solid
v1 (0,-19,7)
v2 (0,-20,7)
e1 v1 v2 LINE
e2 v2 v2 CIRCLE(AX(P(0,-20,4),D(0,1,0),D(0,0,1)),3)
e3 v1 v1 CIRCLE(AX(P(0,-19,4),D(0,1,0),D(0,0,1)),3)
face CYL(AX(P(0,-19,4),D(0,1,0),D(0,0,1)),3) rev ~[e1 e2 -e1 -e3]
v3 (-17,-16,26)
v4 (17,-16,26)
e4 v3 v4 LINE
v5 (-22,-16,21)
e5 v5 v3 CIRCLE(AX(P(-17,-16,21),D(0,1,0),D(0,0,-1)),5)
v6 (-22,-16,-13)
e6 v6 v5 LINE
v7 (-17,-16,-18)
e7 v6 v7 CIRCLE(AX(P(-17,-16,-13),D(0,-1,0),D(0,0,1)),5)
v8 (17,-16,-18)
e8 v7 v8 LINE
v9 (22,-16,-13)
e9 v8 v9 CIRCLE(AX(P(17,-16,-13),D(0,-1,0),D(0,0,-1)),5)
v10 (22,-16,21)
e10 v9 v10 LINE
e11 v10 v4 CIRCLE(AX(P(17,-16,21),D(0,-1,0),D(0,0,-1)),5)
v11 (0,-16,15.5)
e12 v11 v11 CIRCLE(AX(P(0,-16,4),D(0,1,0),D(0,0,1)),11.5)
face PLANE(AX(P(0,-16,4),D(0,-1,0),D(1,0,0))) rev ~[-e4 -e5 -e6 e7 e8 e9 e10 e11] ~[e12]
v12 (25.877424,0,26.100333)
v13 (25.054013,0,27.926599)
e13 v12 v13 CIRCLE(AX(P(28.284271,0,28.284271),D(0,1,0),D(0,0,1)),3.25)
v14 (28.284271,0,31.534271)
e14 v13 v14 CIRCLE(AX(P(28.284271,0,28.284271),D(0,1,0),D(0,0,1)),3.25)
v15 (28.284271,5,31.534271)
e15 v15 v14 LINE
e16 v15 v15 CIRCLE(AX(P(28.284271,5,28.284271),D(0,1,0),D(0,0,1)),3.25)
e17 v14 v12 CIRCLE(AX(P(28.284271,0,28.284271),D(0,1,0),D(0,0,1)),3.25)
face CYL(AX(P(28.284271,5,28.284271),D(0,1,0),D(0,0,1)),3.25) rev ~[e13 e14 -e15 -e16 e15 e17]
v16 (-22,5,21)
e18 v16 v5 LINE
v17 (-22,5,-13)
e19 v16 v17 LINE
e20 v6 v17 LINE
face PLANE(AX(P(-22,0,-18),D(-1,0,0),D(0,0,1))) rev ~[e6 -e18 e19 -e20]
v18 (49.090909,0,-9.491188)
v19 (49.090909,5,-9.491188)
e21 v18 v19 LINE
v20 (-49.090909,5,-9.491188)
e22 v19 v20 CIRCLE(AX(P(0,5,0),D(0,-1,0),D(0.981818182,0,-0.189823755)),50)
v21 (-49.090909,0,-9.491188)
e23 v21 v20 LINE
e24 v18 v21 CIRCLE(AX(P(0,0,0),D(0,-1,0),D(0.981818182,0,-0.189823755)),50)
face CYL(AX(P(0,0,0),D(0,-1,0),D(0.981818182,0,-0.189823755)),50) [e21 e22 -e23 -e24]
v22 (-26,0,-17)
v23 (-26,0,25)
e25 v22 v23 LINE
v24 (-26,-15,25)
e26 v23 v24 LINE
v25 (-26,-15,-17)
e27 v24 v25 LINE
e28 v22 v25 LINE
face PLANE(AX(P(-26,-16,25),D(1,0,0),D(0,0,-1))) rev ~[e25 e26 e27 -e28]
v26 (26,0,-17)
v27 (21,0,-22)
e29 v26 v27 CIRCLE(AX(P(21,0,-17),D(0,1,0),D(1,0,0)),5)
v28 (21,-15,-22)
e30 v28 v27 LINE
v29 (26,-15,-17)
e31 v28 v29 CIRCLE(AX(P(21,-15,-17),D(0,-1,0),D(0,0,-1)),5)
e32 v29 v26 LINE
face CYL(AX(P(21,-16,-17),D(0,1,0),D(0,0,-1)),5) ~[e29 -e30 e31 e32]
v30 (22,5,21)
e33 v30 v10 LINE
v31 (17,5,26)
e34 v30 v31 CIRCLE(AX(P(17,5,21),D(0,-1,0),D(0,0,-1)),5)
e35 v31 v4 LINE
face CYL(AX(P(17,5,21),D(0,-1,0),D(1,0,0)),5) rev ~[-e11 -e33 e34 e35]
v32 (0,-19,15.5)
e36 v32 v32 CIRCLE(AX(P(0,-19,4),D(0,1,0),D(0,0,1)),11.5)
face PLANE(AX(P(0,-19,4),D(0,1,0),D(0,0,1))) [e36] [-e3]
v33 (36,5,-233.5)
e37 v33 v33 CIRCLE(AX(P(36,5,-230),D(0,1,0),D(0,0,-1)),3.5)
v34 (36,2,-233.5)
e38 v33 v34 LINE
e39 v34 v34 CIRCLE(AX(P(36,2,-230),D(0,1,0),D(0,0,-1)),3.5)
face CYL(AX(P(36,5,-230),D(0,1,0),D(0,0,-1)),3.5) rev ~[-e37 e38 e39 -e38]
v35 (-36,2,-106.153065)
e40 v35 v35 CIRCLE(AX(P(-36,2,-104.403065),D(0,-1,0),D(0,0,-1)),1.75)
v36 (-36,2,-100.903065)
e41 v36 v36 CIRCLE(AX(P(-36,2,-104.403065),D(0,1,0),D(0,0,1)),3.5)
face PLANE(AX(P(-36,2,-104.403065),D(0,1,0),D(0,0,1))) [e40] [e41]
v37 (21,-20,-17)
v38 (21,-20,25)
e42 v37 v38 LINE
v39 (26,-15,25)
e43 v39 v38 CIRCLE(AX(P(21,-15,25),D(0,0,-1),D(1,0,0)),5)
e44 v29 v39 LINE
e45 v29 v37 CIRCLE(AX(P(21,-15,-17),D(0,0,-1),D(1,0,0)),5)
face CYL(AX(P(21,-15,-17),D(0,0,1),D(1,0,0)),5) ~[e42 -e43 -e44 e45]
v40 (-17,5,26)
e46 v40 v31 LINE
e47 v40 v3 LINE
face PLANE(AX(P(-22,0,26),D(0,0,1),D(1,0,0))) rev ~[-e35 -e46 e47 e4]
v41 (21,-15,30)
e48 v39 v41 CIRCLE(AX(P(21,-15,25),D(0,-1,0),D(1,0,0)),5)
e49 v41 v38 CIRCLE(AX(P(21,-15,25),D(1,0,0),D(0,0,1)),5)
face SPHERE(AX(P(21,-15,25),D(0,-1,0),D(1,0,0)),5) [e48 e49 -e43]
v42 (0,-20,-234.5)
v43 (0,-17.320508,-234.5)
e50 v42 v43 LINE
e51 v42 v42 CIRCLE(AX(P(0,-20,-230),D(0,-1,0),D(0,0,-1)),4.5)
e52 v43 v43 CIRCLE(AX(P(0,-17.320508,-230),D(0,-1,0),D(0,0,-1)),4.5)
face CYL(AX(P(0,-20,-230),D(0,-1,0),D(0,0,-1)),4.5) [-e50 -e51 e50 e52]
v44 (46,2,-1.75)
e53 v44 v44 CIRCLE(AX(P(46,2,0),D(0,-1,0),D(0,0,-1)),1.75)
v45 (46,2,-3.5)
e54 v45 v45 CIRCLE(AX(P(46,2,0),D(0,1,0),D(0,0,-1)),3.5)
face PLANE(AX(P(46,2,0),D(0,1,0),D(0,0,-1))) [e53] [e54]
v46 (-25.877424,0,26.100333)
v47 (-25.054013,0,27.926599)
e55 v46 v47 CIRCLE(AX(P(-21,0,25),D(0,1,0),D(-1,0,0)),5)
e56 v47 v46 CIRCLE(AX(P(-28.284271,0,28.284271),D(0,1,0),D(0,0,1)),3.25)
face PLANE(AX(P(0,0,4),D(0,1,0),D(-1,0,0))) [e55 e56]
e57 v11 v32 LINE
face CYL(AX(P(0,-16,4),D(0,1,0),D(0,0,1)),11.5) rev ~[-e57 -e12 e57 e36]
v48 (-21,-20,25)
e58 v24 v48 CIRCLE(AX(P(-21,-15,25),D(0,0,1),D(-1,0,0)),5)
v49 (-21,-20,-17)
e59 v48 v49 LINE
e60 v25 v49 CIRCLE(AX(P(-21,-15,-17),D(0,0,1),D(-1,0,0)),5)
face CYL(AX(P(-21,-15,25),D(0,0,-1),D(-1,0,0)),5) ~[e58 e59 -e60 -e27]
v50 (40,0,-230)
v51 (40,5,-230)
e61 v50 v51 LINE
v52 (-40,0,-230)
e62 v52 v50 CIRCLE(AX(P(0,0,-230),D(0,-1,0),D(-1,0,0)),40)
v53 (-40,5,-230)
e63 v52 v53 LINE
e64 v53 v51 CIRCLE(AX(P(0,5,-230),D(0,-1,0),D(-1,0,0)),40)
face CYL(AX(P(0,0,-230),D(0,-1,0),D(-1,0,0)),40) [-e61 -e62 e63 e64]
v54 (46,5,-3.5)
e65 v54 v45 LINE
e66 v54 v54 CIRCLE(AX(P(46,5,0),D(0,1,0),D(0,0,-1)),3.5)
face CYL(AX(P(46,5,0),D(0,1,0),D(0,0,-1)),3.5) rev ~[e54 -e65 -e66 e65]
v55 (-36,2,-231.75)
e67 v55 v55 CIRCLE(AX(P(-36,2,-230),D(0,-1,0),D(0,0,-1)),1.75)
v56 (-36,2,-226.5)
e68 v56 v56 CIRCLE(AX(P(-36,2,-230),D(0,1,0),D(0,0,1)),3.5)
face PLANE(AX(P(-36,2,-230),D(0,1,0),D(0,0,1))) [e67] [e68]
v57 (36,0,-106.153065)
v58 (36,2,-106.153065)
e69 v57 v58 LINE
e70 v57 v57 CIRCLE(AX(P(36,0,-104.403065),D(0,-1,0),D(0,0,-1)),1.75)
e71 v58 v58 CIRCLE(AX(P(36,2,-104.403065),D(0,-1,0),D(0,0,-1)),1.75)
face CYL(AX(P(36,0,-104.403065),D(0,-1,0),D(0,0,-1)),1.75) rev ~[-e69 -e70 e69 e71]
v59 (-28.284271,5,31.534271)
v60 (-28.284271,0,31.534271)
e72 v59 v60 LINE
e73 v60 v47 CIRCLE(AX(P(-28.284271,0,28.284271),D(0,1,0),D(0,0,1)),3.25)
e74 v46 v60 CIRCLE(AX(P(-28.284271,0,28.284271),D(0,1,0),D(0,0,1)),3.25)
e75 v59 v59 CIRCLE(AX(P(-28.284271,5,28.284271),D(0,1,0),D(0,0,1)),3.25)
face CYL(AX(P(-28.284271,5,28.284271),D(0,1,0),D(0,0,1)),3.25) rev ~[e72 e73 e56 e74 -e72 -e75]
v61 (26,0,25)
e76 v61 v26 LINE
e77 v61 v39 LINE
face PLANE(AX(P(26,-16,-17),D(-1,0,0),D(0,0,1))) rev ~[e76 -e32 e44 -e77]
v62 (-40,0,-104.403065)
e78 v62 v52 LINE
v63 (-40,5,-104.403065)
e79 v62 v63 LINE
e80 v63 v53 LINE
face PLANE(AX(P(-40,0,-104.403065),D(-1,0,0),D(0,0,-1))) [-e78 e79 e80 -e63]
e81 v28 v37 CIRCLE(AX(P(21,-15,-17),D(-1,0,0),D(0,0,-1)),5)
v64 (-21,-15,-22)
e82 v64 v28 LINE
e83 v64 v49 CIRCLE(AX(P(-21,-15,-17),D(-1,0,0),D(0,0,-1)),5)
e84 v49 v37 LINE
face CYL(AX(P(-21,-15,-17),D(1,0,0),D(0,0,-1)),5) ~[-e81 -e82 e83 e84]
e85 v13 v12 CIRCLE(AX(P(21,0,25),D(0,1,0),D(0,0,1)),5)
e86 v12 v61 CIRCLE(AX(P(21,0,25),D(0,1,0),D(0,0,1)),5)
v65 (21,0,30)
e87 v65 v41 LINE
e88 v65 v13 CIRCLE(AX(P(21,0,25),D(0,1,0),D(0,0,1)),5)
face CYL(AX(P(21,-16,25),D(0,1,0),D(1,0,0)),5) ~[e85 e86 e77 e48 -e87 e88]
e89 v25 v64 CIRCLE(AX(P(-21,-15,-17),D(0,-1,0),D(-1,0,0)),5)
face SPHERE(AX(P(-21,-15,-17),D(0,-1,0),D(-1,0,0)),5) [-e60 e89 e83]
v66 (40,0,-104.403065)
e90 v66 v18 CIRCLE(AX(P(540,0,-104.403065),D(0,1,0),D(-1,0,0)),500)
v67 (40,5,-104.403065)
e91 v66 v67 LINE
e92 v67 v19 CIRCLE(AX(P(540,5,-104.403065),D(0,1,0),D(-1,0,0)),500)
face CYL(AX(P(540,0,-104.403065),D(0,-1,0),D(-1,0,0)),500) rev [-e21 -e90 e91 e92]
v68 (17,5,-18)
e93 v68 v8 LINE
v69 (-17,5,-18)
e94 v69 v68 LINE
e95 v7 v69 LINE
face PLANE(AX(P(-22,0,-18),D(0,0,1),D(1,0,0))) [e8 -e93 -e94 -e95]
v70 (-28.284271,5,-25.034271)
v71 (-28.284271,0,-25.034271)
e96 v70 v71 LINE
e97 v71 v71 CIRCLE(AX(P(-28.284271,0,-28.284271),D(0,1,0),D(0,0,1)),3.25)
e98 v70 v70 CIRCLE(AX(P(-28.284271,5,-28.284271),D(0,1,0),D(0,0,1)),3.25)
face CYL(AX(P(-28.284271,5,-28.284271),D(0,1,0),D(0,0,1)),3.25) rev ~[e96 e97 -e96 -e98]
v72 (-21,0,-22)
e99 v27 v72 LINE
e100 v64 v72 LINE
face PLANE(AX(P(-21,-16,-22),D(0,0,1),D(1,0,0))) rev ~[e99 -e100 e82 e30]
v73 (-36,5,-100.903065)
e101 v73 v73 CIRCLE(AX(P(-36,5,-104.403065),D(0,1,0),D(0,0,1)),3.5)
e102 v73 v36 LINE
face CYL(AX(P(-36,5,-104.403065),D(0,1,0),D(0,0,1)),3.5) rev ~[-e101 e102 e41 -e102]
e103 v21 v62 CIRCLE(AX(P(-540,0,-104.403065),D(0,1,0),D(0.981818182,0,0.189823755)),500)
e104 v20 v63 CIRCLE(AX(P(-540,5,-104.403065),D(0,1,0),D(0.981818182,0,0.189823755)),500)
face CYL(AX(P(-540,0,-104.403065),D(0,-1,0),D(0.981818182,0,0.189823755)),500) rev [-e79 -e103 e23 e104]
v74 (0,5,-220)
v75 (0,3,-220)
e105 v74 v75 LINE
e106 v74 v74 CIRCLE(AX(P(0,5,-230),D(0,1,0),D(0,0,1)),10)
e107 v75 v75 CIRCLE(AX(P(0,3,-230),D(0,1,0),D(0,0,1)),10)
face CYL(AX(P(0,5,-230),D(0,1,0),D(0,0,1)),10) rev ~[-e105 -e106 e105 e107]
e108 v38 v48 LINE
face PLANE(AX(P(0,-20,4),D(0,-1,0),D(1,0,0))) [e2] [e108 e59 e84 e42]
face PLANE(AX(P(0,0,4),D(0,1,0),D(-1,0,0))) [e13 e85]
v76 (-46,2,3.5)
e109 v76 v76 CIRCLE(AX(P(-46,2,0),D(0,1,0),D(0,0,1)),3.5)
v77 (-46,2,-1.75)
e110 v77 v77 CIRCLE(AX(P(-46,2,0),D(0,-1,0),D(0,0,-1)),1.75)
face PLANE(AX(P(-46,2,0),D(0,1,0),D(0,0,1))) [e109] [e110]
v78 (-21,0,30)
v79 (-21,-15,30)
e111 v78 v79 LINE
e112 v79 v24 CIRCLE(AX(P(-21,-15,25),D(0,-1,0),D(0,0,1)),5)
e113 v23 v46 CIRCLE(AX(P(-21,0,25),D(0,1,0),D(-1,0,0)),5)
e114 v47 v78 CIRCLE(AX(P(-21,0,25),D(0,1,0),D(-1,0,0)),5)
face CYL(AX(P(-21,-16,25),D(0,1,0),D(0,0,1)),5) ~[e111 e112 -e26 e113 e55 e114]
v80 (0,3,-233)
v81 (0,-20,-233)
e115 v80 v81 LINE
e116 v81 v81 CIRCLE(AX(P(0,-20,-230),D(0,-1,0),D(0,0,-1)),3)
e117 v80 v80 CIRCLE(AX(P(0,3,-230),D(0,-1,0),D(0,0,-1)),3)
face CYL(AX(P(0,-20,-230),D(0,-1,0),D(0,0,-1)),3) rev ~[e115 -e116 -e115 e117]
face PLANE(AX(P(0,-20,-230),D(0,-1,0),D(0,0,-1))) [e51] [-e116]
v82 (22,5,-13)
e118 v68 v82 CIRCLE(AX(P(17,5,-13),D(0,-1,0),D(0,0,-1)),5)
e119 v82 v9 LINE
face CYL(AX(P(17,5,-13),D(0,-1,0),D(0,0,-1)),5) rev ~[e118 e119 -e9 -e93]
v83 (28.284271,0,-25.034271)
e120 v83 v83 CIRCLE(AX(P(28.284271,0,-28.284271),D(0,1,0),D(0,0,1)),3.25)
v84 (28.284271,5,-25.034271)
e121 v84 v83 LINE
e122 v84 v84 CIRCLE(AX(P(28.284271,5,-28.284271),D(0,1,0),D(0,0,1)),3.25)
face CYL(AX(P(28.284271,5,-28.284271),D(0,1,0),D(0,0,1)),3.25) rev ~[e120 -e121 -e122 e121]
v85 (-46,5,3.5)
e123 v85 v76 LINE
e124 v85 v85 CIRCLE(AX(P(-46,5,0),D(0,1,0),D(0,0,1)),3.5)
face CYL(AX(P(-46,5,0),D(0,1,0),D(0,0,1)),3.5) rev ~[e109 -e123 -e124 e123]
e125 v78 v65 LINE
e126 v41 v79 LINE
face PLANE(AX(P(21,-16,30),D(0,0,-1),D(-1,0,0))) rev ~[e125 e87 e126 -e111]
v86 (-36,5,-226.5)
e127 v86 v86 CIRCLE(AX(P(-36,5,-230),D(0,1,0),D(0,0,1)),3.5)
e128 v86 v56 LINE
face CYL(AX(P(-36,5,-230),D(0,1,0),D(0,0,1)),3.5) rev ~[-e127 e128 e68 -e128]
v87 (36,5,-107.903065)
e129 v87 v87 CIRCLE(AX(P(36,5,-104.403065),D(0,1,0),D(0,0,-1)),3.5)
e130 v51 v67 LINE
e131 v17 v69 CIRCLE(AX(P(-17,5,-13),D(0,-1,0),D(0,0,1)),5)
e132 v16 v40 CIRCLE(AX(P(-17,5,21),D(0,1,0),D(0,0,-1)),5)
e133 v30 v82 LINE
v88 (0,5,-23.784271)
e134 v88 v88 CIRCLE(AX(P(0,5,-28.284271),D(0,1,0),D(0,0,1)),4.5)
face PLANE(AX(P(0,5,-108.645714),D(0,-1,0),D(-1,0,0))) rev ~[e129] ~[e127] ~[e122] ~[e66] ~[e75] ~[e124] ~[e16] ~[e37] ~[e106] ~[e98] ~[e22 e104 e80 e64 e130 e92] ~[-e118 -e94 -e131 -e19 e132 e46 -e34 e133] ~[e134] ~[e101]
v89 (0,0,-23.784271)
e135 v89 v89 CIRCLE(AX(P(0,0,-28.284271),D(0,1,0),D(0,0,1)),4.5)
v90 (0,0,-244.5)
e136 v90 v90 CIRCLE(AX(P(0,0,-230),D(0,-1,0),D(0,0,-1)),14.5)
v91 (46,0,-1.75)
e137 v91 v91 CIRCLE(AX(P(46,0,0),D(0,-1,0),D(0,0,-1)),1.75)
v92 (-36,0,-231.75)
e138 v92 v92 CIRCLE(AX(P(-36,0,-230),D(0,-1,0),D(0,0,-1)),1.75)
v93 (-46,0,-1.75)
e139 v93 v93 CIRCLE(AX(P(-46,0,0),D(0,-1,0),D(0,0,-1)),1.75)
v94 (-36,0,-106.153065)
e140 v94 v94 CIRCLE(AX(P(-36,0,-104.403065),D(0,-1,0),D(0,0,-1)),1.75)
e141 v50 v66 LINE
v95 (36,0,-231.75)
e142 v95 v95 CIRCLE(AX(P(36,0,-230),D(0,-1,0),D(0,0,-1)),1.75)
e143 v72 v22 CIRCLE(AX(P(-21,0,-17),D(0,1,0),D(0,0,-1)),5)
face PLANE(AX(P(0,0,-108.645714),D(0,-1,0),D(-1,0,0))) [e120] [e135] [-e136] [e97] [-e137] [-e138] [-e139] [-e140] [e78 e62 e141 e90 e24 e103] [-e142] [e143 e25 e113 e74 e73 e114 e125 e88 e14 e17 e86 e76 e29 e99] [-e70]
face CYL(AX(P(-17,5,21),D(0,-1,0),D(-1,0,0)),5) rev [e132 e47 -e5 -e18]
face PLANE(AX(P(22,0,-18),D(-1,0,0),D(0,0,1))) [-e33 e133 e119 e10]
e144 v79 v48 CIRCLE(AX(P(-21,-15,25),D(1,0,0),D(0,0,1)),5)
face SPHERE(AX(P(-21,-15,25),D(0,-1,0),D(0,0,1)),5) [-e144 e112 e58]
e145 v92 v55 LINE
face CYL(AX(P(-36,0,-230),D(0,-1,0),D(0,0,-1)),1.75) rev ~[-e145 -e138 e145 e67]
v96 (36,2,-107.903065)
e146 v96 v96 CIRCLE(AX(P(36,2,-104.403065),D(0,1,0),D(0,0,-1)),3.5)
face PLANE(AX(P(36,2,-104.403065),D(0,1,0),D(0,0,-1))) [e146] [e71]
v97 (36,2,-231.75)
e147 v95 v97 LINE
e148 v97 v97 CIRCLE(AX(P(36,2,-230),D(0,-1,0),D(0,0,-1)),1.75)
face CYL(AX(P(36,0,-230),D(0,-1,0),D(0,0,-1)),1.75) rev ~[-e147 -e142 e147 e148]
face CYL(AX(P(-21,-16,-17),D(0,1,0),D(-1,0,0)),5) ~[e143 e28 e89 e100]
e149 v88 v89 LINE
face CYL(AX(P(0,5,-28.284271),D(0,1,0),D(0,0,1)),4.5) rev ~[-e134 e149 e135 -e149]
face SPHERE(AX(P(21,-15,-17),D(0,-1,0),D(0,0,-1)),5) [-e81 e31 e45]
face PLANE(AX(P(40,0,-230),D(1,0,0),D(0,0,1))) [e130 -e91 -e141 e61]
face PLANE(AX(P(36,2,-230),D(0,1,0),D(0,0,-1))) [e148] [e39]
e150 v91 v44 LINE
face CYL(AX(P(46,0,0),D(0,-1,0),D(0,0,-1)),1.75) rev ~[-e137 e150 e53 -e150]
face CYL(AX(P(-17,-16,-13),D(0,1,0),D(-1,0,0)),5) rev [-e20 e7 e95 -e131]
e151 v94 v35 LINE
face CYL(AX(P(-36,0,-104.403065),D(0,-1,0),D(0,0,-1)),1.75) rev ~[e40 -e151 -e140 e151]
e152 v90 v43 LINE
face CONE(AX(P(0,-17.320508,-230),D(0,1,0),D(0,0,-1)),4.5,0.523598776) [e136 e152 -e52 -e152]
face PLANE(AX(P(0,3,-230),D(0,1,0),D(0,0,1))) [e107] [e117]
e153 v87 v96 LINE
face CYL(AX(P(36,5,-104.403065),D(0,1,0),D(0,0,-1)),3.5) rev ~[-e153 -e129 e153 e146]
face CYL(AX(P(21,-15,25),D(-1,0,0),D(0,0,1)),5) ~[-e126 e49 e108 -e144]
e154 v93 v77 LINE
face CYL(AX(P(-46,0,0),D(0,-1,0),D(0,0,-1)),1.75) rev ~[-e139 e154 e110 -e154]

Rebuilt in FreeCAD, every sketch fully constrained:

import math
import FreeCAD as App
import Part
import Sketcher
Q = App.Units.Quantity


def edges_at(feature, points):
    """Names of the edges that pass closest to the given points."""
    edges = feature.Shape.Edges
    near = lambda p: min(range(len(edges)), key=lambda i: edges[i].distToShape(Part.Vertex(*p))[0])
    return sorted({f"Edge{near(p) + 1}" for p in points})

doc = App.newDocument("Part")
body = doc.addObject("PartDesign::Body", "Body")

sketch1 = doc.addObject("Sketcher::SketchObject", "Sketch")
body.addObject(sketch1)
sketch1.AttachmentSupport = (doc.XZ_Plane, [""])
sketch1.MapMode = "FlatFace"
sketch1.addGeometry(Part.LineSegment(App.Vector(-40, -230, 0), App.Vector(-40, -104, 0)), False)
sketch1.addGeometry(Part.ArcOfCircle(Part.Circle(App.Vector(-540, -104, 0), App.Vector(0, 0, 1), 500), math.radians(0), math.radians(10.94)), False)
sketch1.addGeometry(Part.ArcOfCircle(Part.Circle(App.Vector(0, 0, 0), App.Vector(0, 0, 1), 50), math.radians(-11), math.radians(191)), False)
sketch1.addGeometry(Part.ArcOfCircle(Part.Circle(App.Vector(540, -104, 0), App.Vector(0, 0, 1), 500), math.radians(169.06), math.radians(180)), False)
sketch1.addGeometry(Part.LineSegment(App.Vector(40, -104, 0), App.Vector(40, -230, 0)), False)
sketch1.addGeometry(Part.ArcOfCircle(Part.Circle(App.Vector(0, -230, 0), App.Vector(0, 0, 1), 40), math.radians(180), math.radians(360)), False)
sketch1.addConstraint(Sketcher.Constraint("Tangent", 0, 2, 1, 1))
sketch1.addConstraint(Sketcher.Constraint("Tangent", 1, 2, 2, 2))
sketch1.addConstraint(Sketcher.Constraint("Tangent", 2, 1, 3, 1))
sketch1.addConstraint(Sketcher.Constraint("Tangent", 3, 2, 4, 1))
sketch1.addConstraint(Sketcher.Constraint("Tangent", 4, 2, 5, 2))
sketch1.addConstraint(Sketcher.Constraint("Tangent", 5, 1, 0, 1))
sketch1.addConstraint(Sketcher.Constraint("Vertical", 0))
sketch1.addConstraint(Sketcher.Constraint("Vertical", 4))
sketch1.addConstraint(Sketcher.Constraint("Coincident", 2, 3, -1, 1))
sketch1.addConstraint(Sketcher.Constraint("Equal", 1, 3))
sketch1.addConstraint(Sketcher.Constraint("PointOnObject", 5, 3, -2))
sketch1.addConstraint(Sketcher.Constraint("Radius", 1, Q("500 mm")))
sketch1.addConstraint(Sketcher.Constraint("Radius", 2, Q("50 mm")))
sketch1.addConstraint(Sketcher.Constraint("Radius", 5, Q("40 mm")))
sketch1.addConstraint(Sketcher.Constraint("DistanceY", 5, 3, -1, 1, Q("230 mm")))
pad1 = doc.addObject("PartDesign::Pad", "Pad")
body.addObject(pad1)
pad1.Profile = sketch1
pad1.Length = 5
pad1.Reversed = True

sketch2 = doc.addObject("Sketcher::SketchObject", "Sketch001")
body.addObject(sketch2)
sketch2.AttachmentSupport = (doc.XZ_Plane, [""])
sketch2.MapMode = "FlatFace"
sketch2.AttachmentOffset = App.Placement(App.Vector(0, 0, -5), App.Rotation())
sketch2.addGeometry(Part.Circle(App.Vector(28.3, -28.3, 0), App.Vector(0, 0, 1), 3.2), False)
sketch2.addGeometry(Part.Circle(App.Vector(28.3, 28.3, 0), App.Vector(0, 0, 1), 3.2), False)
sketch2.addGeometry(Part.Circle(App.Vector(-28.3, 28.3, 0), App.Vector(0, 0, 1), 3.2), False)
sketch2.addGeometry(Part.Circle(App.Vector(-28.3, -28.3, 0), App.Vector(0, 0, 1), 3.2), False)
sketch2.addConstraint(Sketcher.Constraint("Equal", 0, 1))
sketch2.addConstraint(Sketcher.Constraint("Equal", 1, 2))
sketch2.addConstraint(Sketcher.Constraint("Equal", 2, 3))
sketch2.addConstraint(Sketcher.Constraint("Symmetric", 0, 3, 2, 3, -1, 1))
sketch2.addConstraint(Sketcher.Constraint("Symmetric", 1, 3, 3, 3, -1, 1))
sketch2.addConstraint(Sketcher.Constraint("Symmetric", 1, 3, 2, 3, -2))
sketch2.addConstraint(Sketcher.Constraint("Diameter", 0, Q("6.5 mm")))
sketch2.addConstraint(Sketcher.Constraint("DistanceX", -1, 1, 0, 3, Q("28.284271 mm")))
sketch2.addConstraint(Sketcher.Constraint("DistanceY", 0, 3, -1, 1, Q("28.284271 mm")))
pocket1 = doc.addObject("PartDesign::Pocket", "Pocket")
body.addObject(pocket1)
pocket1.Profile = sketch2
pocket1.Length = 5
pocket1.Reversed = True

sketch3 = doc.addObject("Sketcher::SketchObject", "Sketch002")
body.addObject(sketch3)
sketch3.AttachmentSupport = (doc.XZ_Plane, [""])
sketch3.MapMode = "FlatFace"
sketch3.addGeometry(Part.Circle(App.Vector(46, 0, 0), App.Vector(0, 0, 1), 1.8), False)
sketch3.addGeometry(Part.Circle(App.Vector(36, -104.4, 0), App.Vector(0, 0, 1), 1.8), False)
sketch3.addGeometry(Part.Circle(App.Vector(36, -230, 0), App.Vector(0, 0, 1), 1.8), False)
sketch3.addGeometry(Part.Circle(App.Vector(-36, -230, 0), App.Vector(0, 0, 1), 1.8), False)
sketch3.addGeometry(Part.Circle(App.Vector(-36, -104.4, 0), App.Vector(0, 0, 1), 1.8), False)
sketch3.addGeometry(Part.Circle(App.Vector(-46, 0, 0), App.Vector(0, 0, 1), 1.8), False)
sketch3.addConstraint(Sketcher.Constraint("Equal", 0, 1))
sketch3.addConstraint(Sketcher.Constraint("Equal", 1, 2))
sketch3.addConstraint(Sketcher.Constraint("Equal", 2, 3))
sketch3.addConstraint(Sketcher.Constraint("Equal", 3, 4))
sketch3.addConstraint(Sketcher.Constraint("Equal", 4, 5))
sketch3.addConstraint(Sketcher.Constraint("Symmetric", 0, 3, 5, 3, -1, 1))
sketch3.addConstraint(Sketcher.Constraint("Symmetric", 2, 3, 3, 3, -2))
sketch3.addConstraint(Sketcher.Constraint("Symmetric", 1, 3, 4, 3, -2))
sketch3.addConstraint(Sketcher.Constraint("PointOnObject", 0, 3, -1))
sketch3.addConstraint(Sketcher.Constraint("Vertical", 1, 3, 2, 3))
sketch3.addConstraint(Sketcher.Constraint("Diameter", 0, Q("3.5 mm")))
sketch3.addConstraint(Sketcher.Constraint("DistanceX", -1, 1, 0, 3, Q("46 mm")))
sketch3.addConstraint(Sketcher.Constraint("DistanceX", -1, 1, 1, 3, Q("36 mm")))
sketch3.addConstraint(Sketcher.Constraint("DistanceY", 2, 3, -1, 1, Q("230 mm")))
sketch3.addConstraint(Sketcher.Constraint("DistanceY", 1, 3, -1, 1, Q("104.403065 mm")))
pocket2 = doc.addObject("PartDesign::Pocket", "Pocket001")
body.addObject(pocket2)
pocket2.Profile = sketch3
pocket2.Length = 45

sketch4 = doc.addObject("Sketcher::SketchObject", "Sketch003")
body.addObject(sketch4)
sketch4.AttachmentSupport = (doc.XZ_Plane, [""])
sketch4.MapMode = "FlatFace"
sketch4.AttachmentOffset = App.Placement(App.Vector(0, 0, -5), App.Rotation())
sketch4.addGeometry(Part.Circle(App.Vector(-36, -230, 0), App.Vector(0, 0, 1), 3.5), False)
sketch4.addGeometry(Part.Circle(App.Vector(-36, -104.4, 0), App.Vector(0, 0, 1), 3.5), False)
sketch4.addGeometry(Part.Circle(App.Vector(-46, 0, 0), App.Vector(0, 0, 1), 3.5), False)
sketch4.addGeometry(Part.Circle(App.Vector(46, 0, 0), App.Vector(0, 0, 1), 3.5), False)
sketch4.addGeometry(Part.Circle(App.Vector(36, -104.4, 0), App.Vector(0, 0, 1), 3.5), False)
sketch4.addGeometry(Part.Circle(App.Vector(36, -230, 0), App.Vector(0, 0, 1), 3.5), False)
sketch4.addConstraint(Sketcher.Constraint("Equal", 0, 1))
sketch4.addConstraint(Sketcher.Constraint("Equal", 1, 2))
sketch4.addConstraint(Sketcher.Constraint("Equal", 2, 3))
sketch4.addConstraint(Sketcher.Constraint("Equal", 3, 4))
sketch4.addConstraint(Sketcher.Constraint("Equal", 4, 5))
sketch4.addConstraint(Sketcher.Constraint("Symmetric", 2, 3, 3, 3, -1, 1))
sketch4.addConstraint(Sketcher.Constraint("Symmetric", 1, 3, 4, 3, -2))
sketch4.addConstraint(Sketcher.Constraint("Symmetric", 0, 3, 5, 3, -2))
sketch4.addConstraint(Sketcher.Constraint("PointOnObject", 2, 3, -1))
sketch4.addConstraint(Sketcher.Constraint("Vertical", 0, 3, 1, 3))
sketch4.addConstraint(Sketcher.Constraint("Diameter", 0, Q("7 mm")))
sketch4.addConstraint(Sketcher.Constraint("DistanceX", 0, 3, -1, 1, Q("36 mm")))
sketch4.addConstraint(Sketcher.Constraint("DistanceY", 0, 3, -1, 1, Q("230 mm")))
sketch4.addConstraint(Sketcher.Constraint("DistanceX", 2, 3, -1, 1, Q("46 mm")))
sketch4.addConstraint(Sketcher.Constraint("DistanceY", 1, 3, -1, 1, Q("104.403065 mm")))
pocket3 = doc.addObject("PartDesign::Pocket", "Pocket002")
body.addObject(pocket3)
pocket3.Profile = sketch4
pocket3.Length = 3
pocket3.Reversed = True

sketch5 = doc.addObject("Sketcher::SketchObject", "Sketch004")
body.addObject(sketch5)
sketch5.AttachmentSupport = (doc.XZ_Plane, [""])
sketch5.MapMode = "FlatFace"
sketch5.AttachmentOffset = App.Placement(App.Vector(0, 0, -5), App.Rotation())
sketch5.addGeometry(Part.LineSegment(App.Vector(-22, -18, 0), App.Vector(-22, 26, 0)), False)
sketch5.addGeometry(Part.LineSegment(App.Vector(-22, 26, 0), App.Vector(22, 26, 0)), False)
sketch5.addGeometry(Part.LineSegment(App.Vector(22, 26, 0), App.Vector(22, -18, 0)), False)
sketch5.addGeometry(Part.LineSegment(App.Vector(22, -18, 0), App.Vector(-22, -18, 0)), False)
sketch5.addConstraint(Sketcher.Constraint("Coincident", 0, 2, 1, 1))
sketch5.addConstraint(Sketcher.Constraint("Coincident", 1, 2, 2, 1))
sketch5.addConstraint(Sketcher.Constraint("Coincident", 2, 2, 3, 1))
sketch5.addConstraint(Sketcher.Constraint("Coincident", 3, 2, 0, 1))
sketch5.addConstraint(Sketcher.Constraint("Vertical", 0))
sketch5.addConstraint(Sketcher.Constraint("Horizontal", 1))
sketch5.addConstraint(Sketcher.Constraint("Vertical", 2))
sketch5.addConstraint(Sketcher.Constraint("Horizontal", 3))
sketch5.addConstraint(Sketcher.Constraint("Equal", 3, 0))
sketch5.addConstraint(Sketcher.Constraint("DistanceX", 1, 1, 1, 2, Q("44 mm")))
sketch5.addConstraint(Sketcher.Constraint("DistanceX", 0, 2, -1, 1, Q("22 mm")))
sketch5.addConstraint(Sketcher.Constraint("DistanceY", -1, 1, 0, 2, Q("26 mm")))
pocket4 = doc.addObject("PartDesign::Pocket", "Pocket003")
body.addObject(pocket4)
pocket4.Profile = sketch5
pocket4.Length = 5
pocket4.Reversed = True

sketch6 = doc.addObject("Sketcher::SketchObject", "Sketch005")
body.addObject(sketch6)
sketch6.AttachmentSupport = (doc.XZ_Plane, [""])
sketch6.MapMode = "FlatFace"
sketch6.addGeometry(Part.LineSegment(App.Vector(21, 30, 0), App.Vector(-21, 30, 0)), False)
sketch6.addGeometry(Part.ArcOfCircle(Part.Circle(App.Vector(-21, 25, 0), App.Vector(0, 0, 1), 5), math.radians(90), math.radians(180)), False)
sketch6.addGeometry(Part.LineSegment(App.Vector(-26, 25, 0), App.Vector(-26, -17, 0)), False)
sketch6.addGeometry(Part.ArcOfCircle(Part.Circle(App.Vector(-21, -17, 0), App.Vector(0, 0, 1), 5), math.radians(180), math.radians(270)), False)
sketch6.addGeometry(Part.LineSegment(App.Vector(-21, -22, 0), App.Vector(21, -22, 0)), False)
sketch6.addGeometry(Part.ArcOfCircle(Part.Circle(App.Vector(21, -17, 0), App.Vector(0, 0, 1), 5), math.radians(-90), math.radians(0)), False)
sketch6.addGeometry(Part.LineSegment(App.Vector(26, -17, 0), App.Vector(26, 25, 0)), False)
sketch6.addGeometry(Part.ArcOfCircle(Part.Circle(App.Vector(21, 25, 0), App.Vector(0, 0, 1), 5), math.radians(0), math.radians(90)), False)
sketch6.addGeometry(Part.LineSegment(App.Vector(-22, -18, 0), App.Vector(-22, 26, 0)), False)
sketch6.addGeometry(Part.LineSegment(App.Vector(-22, 26, 0), App.Vector(22, 26, 0)), False)
sketch6.addGeometry(Part.LineSegment(App.Vector(22, 26, 0), App.Vector(22, -18, 0)), False)
sketch6.addGeometry(Part.LineSegment(App.Vector(22, -18, 0), App.Vector(-22, -18, 0)), False)
sketch6.addConstraint(Sketcher.Constraint("Tangent", 0, 2, 1, 1))
sketch6.addConstraint(Sketcher.Constraint("Tangent", 1, 2, 2, 1))
sketch6.addConstraint(Sketcher.Constraint("Tangent", 2, 2, 3, 1))
sketch6.addConstraint(Sketcher.Constraint("Tangent", 3, 2, 4, 1))
sketch6.addConstraint(Sketcher.Constraint("Tangent", 4, 2, 5, 1))
sketch6.addConstraint(Sketcher.Constraint("Tangent", 5, 2, 6, 1))
sketch6.addConstraint(Sketcher.Constraint("Tangent", 6, 2, 7, 1))
sketch6.addConstraint(Sketcher.Constraint("Tangent", 7, 2, 0, 1))
sketch6.addConstraint(Sketcher.Constraint("Coincident", 8, 2, 9, 1))
sketch6.addConstraint(Sketcher.Constraint("Coincident", 9, 2, 10, 1))
sketch6.addConstraint(Sketcher.Constraint("Coincident", 10, 2, 11, 1))
sketch6.addConstraint(Sketcher.Constraint("Coincident", 11, 2, 8, 1))
sketch6.addConstraint(Sketcher.Constraint("Horizontal", 0))
sketch6.addConstraint(Sketcher.Constraint("Vertical", 2))
sketch6.addConstraint(Sketcher.Constraint("Horizontal", 4))
sketch6.addConstraint(Sketcher.Constraint("Vertical", 6))
sketch6.addConstraint(Sketcher.Constraint("Vertical", 8))
sketch6.addConstraint(Sketcher.Constraint("Horizontal", 9))
sketch6.addConstraint(Sketcher.Constraint("Vertical", 10))
sketch6.addConstraint(Sketcher.Constraint("Horizontal", 11))
sketch6.addConstraint(Sketcher.Constraint("Equal", 1, 3))
sketch6.addConstraint(Sketcher.Constraint("Equal", 3, 5))
sketch6.addConstraint(Sketcher.Constraint("Equal", 5, 7))
sketch6.addConstraint(Sketcher.Constraint("Equal", 4, 2))
sketch6.addConstraint(Sketcher.Constraint("Equal", 11, 8))
sketch6.addConstraint(Sketcher.Constraint("Radius", 1, Q("5 mm")))
sketch6.addConstraint(Sketcher.Constraint("DistanceX", 0, 2, 0, 1, Q("42 mm")))
sketch6.addConstraint(Sketcher.Constraint("DistanceX", 9, 1, 9, 2, Q("44 mm")))
sketch6.addConstraint(Sketcher.Constraint("DistanceX", 1, 3, -1, 1, Q("21 mm")))
sketch6.addConstraint(Sketcher.Constraint("DistanceY", -1, 1, 1, 3, Q("25 mm")))
sketch6.addConstraint(Sketcher.Constraint("DistanceX", 8, 2, -1, 1, Q("22 mm")))
sketch6.addConstraint(Sketcher.Constraint("DistanceY", -1, 1, 8, 2, Q("26 mm")))
pad2 = doc.addObject("PartDesign::Pad", "Pad001")
body.addObject(pad2)
pad2.Profile = sketch6
pad2.Length = 16

sketch7 = doc.addObject("Sketcher::SketchObject", "Sketch006")
body.addObject(sketch7)
sketch7.AttachmentSupport = (doc.XZ_Plane, [""])
sketch7.MapMode = "FlatFace"
sketch7.AttachmentOffset = App.Placement(App.Vector(0, 0, 16), App.Rotation())
sketch7.addGeometry(Part.LineSegment(App.Vector(26, -17, 0), App.Vector(26, 25, 0)), False)
sketch7.addGeometry(Part.ArcOfCircle(Part.Circle(App.Vector(21, 25, 0), App.Vector(0, 0, 1), 5), math.radians(0), math.radians(90)), False)
sketch7.addGeometry(Part.LineSegment(App.Vector(21, 30, 0), App.Vector(-21, 30, 0)), False)
sketch7.addGeometry(Part.ArcOfCircle(Part.Circle(App.Vector(-21, 25, 0), App.Vector(0, 0, 1), 5), math.radians(90), math.radians(180)), False)
sketch7.addGeometry(Part.LineSegment(App.Vector(-26, 25, 0), App.Vector(-26, -17, 0)), False)
sketch7.addGeometry(Part.ArcOfCircle(Part.Circle(App.Vector(-21, -17, 0), App.Vector(0, 0, 1), 5), math.radians(180), math.radians(270)), False)
sketch7.addGeometry(Part.LineSegment(App.Vector(-21, -22, 0), App.Vector(21, -22, 0)), False)
sketch7.addGeometry(Part.ArcOfCircle(Part.Circle(App.Vector(21, -17, 0), App.Vector(0, 0, 1), 5), math.radians(-90), math.radians(0)), False)
sketch7.addConstraint(Sketcher.Constraint("Tangent", 0, 2, 1, 1))
sketch7.addConstraint(Sketcher.Constraint("Tangent", 1, 2, 2, 1))
sketch7.addConstraint(Sketcher.Constraint("Tangent", 2, 2, 3, 1))
sketch7.addConstraint(Sketcher.Constraint("Tangent", 3, 2, 4, 1))
sketch7.addConstraint(Sketcher.Constraint("Tangent", 4, 2, 5, 1))
sketch7.addConstraint(Sketcher.Constraint("Tangent", 5, 2, 6, 1))
sketch7.addConstraint(Sketcher.Constraint("Tangent", 6, 2, 7, 1))
sketch7.addConstraint(Sketcher.Constraint("Tangent", 7, 2, 0, 1))
sketch7.addConstraint(Sketcher.Constraint("Vertical", 0))
sketch7.addConstraint(Sketcher.Constraint("Horizontal", 2))
sketch7.addConstraint(Sketcher.Constraint("Vertical", 4))
sketch7.addConstraint(Sketcher.Constraint("Horizontal", 6))
sketch7.addConstraint(Sketcher.Constraint("Equal", 1, 3))
sketch7.addConstraint(Sketcher.Constraint("Equal", 3, 5))
sketch7.addConstraint(Sketcher.Constraint("Equal", 5, 7))
sketch7.addConstraint(Sketcher.Constraint("Equal", 6, 0))
sketch7.addConstraint(Sketcher.Constraint("Radius", 1, Q("5 mm")))
sketch7.addConstraint(Sketcher.Constraint("DistanceX", 2, 2, 2, 1, Q("42 mm")))
sketch7.addConstraint(Sketcher.Constraint("DistanceX", -1, 1, 1, 3, Q("21 mm")))
sketch7.addConstraint(Sketcher.Constraint("DistanceY", -1, 1, 1, 3, Q("25 mm")))
pad3 = doc.addObject("PartDesign::Pad", "Pad002")
body.addObject(pad3)
pad3.Profile = sketch7
pad3.Length = 4
doc.recompute()

fillet = doc.addObject("PartDesign::Fillet", "Fillet")
body.addObject(fillet)
fillet.Base = (pad3, edges_at(pad3, [
    (24.536, -20, 28.536),
    (0, -20, 30),
    (-24.536, -20, 28.536),
    (-26, -20, 4),
    (-24.536, -20, -20.536),
    (0, -20, -22),
    (24.536, -20, -20.536),
    (26, -20, 4),
]))
fillet.Radius = 5

sketch8 = doc.addObject("Sketcher::SketchObject", "Sketch007")
body.addObject(sketch8)
sketch8.AttachmentSupport = (doc.XZ_Plane, [""])
sketch8.MapMode = "FlatFace"
sketch8.AttachmentOffset = App.Placement(App.Vector(0, 0, 16), App.Rotation())
sketch8.addGeometry(Part.Circle(App.Vector(0, 4, 0), App.Vector(0, 0, 1), 12), False)
sketch8.addConstraint(Sketcher.Constraint("PointOnObject", 0, 3, -2))
sketch8.addConstraint(Sketcher.Constraint("Diameter", 0, Q("23 mm")))
sketch8.addConstraint(Sketcher.Constraint("DistanceY", -1, 1, 0, 3, Q("4 mm")))
pocket5 = doc.addObject("PartDesign::Pocket", "Pocket004")
body.addObject(pocket5)
pocket5.Profile = sketch8
pocket5.Length = 3
pocket5.Reversed = True

sketch9 = doc.addObject("Sketcher::SketchObject", "Sketch008")
body.addObject(sketch9)
sketch9.AttachmentSupport = (doc.XZ_Plane, [""])
sketch9.MapMode = "FlatFace"
sketch9.AttachmentOffset = App.Placement(App.Vector(0, 0, 19), App.Rotation())
sketch9.addGeometry(Part.Circle(App.Vector(0, 4, 0), App.Vector(0, 0, 1), 3), False)
sketch9.addConstraint(Sketcher.Constraint("PointOnObject", 0, 3, -2))
sketch9.addConstraint(Sketcher.Constraint("Diameter", 0, Q("6 mm")))
sketch9.addConstraint(Sketcher.Constraint("DistanceY", -1, 1, 0, 3, Q("4 mm")))
pocket6 = doc.addObject("PartDesign::Pocket", "Pocket005")
body.addObject(pocket6)
pocket6.Profile = sketch9
pocket6.Length = 3
pocket6.Reversed = True
doc.recompute()

fillet2 = doc.addObject("PartDesign::Fillet", "Fillet001")
body.addObject(fillet2)
fillet2.Base = (pocket6, edges_at(pocket6, [
    (22, -5.5, -18),
    (22, -5.5, 26),
    (-22, -5.5, 26),
    (-22, -5.5, -18),
]))
fillet2.Radius = 5

sketch10 = doc.addObject("Sketcher::SketchObject", "Sketch009")
body.addObject(sketch10)
sketch10.AttachmentSupport = (doc.XZ_Plane, [""])
sketch10.MapMode = "FlatFace"
sketch10.addGeometry(Part.Circle(App.Vector(0, -230, 0), App.Vector(0, 0, 1), 3), False)
sketch10.addConstraint(Sketcher.Constraint("PointOnObject", 0, 3, -2))
sketch10.addConstraint(Sketcher.Constraint("Diameter", 0, Q("6 mm")))
sketch10.addConstraint(Sketcher.Constraint("DistanceY", 0, 3, -1, 1, Q("230 mm")))
pocket7 = doc.addObject("PartDesign::Pocket", "Pocket006")
body.addObject(pocket7)
pocket7.Profile = sketch10
pocket7.Length = 39

sketch11 = doc.addObject("Sketcher::SketchObject", "Sketch010")
body.addObject(sketch11)
sketch11.AttachmentSupport = (doc.XZ_Plane, [""])
sketch11.MapMode = "FlatFace"
sketch11.AttachmentOffset = App.Placement(App.Vector(0, 0, 20), App.Rotation())
sketch11.addGeometry(Part.Circle(App.Vector(0, -230, 0), App.Vector(0, 0, 1), 4.5), False)
sketch11.addGeometry(Part.Circle(App.Vector(0, -230, 0), App.Vector(0, 0, 1), 3), False)
sketch11.addConstraint(Sketcher.Constraint("Coincident", 1, 3, 0, 3))
sketch11.addConstraint(Sketcher.Constraint("PointOnObject", 0, 3, -2))
sketch11.addConstraint(Sketcher.Constraint("Diameter", 0, Q("9 mm")))
sketch11.addConstraint(Sketcher.Constraint("Diameter", 1, Q("6 mm")))
sketch11.addConstraint(Sketcher.Constraint("DistanceY", 0, 3, -1, 1, Q("230 mm")))
pad4 = doc.addObject("PartDesign::Pad", "Pad003")
body.addObject(pad4)
pad4.Profile = sketch11
pad4.Length = 20
pad4.Reversed = True
doc.recompute()

chamfer = doc.addObject("PartDesign::Chamfer", "Chamfer")
body.addObject(chamfer)
chamfer.Base = (pad4, edges_at(pad4, [(0, 0, -225.5)]))
chamfer.ChamferType = "Two distances"
chamfer.Size = 10
chamfer.Size2 = 17.320508

sketch12 = doc.addObject("Sketcher::SketchObject", "Sketch011")
body.addObject(sketch12)
sketch12.AttachmentSupport = (doc.XZ_Plane, [""])
sketch12.MapMode = "FlatFace"
sketch12.AttachmentOffset = App.Placement(App.Vector(0, 0, -5), App.Rotation())
sketch12.addGeometry(Part.Circle(App.Vector(0, -230, 0), App.Vector(0, 0, 1), 10), False)
sketch12.addConstraint(Sketcher.Constraint("PointOnObject", 0, 3, -2))
sketch12.addConstraint(Sketcher.Constraint("Diameter", 0, Q("20 mm")))
sketch12.addConstraint(Sketcher.Constraint("DistanceY", 0, 3, -1, 1, Q("230 mm")))
pocket8 = doc.addObject("PartDesign::Pocket", "Pocket007")
body.addObject(pocket8)
pocket8.Profile = sketch12
pocket8.Length = 2
pocket8.Reversed = True

sketch13 = doc.addObject("Sketcher::SketchObject", "Sketch012")
body.addObject(sketch13)
sketch13.AttachmentSupport = (doc.XZ_Plane, [""])
sketch13.MapMode = "FlatFace"
sketch13.AttachmentOffset = App.Placement(App.Vector(0, 0, -5), App.Rotation())
sketch13.addGeometry(Part.Circle(App.Vector(0, -28.3, 0), App.Vector(0, 0, 1), 4.5), False)
sketch13.addConstraint(Sketcher.Constraint("PointOnObject", 0, 3, -2))
sketch13.addConstraint(Sketcher.Constraint("Diameter", 0, Q("9 mm")))
sketch13.addConstraint(Sketcher.Constraint("DistanceY", 0, 3, -1, 1, Q("28.284271 mm")))
pocket9 = doc.addObject("PartDesign::Pocket", "Pocket008")
body.addObject(pocket9)
pocket9.Profile = sketch13
pocket9.Length = 5
pocket9.Reversed = True

doc.recompute()
